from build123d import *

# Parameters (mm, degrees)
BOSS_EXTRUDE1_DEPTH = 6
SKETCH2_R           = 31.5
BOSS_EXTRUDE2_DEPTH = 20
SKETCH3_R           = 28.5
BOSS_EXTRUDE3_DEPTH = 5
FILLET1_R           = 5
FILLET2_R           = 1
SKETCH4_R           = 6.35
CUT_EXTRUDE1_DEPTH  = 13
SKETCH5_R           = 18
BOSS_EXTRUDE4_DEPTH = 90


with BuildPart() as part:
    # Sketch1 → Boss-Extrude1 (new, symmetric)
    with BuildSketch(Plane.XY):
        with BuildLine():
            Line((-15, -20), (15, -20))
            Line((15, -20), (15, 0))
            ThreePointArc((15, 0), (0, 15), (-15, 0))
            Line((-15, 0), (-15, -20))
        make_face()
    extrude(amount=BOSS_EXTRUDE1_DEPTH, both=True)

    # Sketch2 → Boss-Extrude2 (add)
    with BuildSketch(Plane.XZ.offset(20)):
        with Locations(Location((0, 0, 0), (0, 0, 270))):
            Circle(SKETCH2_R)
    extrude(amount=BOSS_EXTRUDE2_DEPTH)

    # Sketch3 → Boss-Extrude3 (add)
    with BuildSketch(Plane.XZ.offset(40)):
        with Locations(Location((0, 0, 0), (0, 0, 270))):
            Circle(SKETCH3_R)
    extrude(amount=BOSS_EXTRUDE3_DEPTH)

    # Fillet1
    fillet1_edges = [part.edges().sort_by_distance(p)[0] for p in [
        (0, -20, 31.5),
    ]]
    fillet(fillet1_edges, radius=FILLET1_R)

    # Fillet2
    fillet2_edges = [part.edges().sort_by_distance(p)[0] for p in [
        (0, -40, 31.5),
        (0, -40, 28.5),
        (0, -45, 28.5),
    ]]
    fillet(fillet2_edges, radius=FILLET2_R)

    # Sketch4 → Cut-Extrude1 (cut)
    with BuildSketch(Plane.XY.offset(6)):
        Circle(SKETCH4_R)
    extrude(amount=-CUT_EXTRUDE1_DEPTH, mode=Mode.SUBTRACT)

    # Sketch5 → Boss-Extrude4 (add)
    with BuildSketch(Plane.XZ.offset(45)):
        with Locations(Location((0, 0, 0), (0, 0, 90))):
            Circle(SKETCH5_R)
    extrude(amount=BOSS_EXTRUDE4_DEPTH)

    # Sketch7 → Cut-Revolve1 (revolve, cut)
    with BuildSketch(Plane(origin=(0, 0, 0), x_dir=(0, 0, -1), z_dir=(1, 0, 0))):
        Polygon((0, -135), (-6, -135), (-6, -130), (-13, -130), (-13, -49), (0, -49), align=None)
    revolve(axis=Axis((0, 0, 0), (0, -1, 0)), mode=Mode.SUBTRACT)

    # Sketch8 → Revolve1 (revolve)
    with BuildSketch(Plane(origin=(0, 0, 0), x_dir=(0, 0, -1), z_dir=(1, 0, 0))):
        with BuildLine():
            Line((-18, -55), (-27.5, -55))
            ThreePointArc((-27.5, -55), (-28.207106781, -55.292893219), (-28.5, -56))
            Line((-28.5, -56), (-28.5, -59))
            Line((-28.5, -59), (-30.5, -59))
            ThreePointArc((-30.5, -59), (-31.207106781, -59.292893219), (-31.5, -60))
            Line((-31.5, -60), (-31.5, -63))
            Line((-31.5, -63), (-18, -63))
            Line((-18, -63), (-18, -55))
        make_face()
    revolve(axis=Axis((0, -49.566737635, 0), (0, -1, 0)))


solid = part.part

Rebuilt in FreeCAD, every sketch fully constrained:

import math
import FreeCAD as App
import Part
import Sketcher
Q = App.Units.Quantity


def edges_at(feature, points):
    """Names of the edges that pass closest to the given points."""
    edges = feature.Shape.Edges
    near = lambda p: min(range(len(edges)), key=lambda i: edges[i].distToShape(Part.Vertex(*p))[0])
    return sorted({f"Edge{near(p) + 1}" for p in points})


def add_polygon(sketch, points):
    """Adds a closed chain of lines whose ends are joined by coincident constraints."""
    first, n = sketch.GeometryCount, len(points)
    for a, b in zip(points, points[1:] + points[:1]):
        sketch.addGeometry(Part.LineSegment(App.Vector(*a, 0), App.Vector(*b, 0)), False)
    for i in range(n):
        sketch.addConstraint(Sketcher.Constraint("Coincident", first + i, 2, first + (i + 1) % n, 1))

doc = App.newDocument("Part")
body = doc.addObject("PartDesign::Body", "Body")

# Sketch on XY plane
sketch1 = body.newObject("Sketcher::SketchObject", "Sketch")
sketch1.AttachmentSupport = (doc.getObject("XY_Plane"), [""])
sketch1.MapMode = "FlatFace"
sketch1.addGeometry([
    Part.LineSegment(App.Vector(-15, -20, 0), App.Vector(15, -20, 0)),
    Part.LineSegment(App.Vector(15, -20, 0), App.Vector(15, 0, 0)),
    Part.ArcOfCircle(Part.Circle(App.Vector(0, 0, 0), App.Vector(0, 0, 1), 15), math.radians(0), math.radians(180)),
    Part.LineSegment(App.Vector(-15, 0, 0), App.Vector(-15, -20, 0)),
], False)
sketch1.addConstraint([
    Sketcher.Constraint("Coincident", 0, 2, 1, 1),
    Sketcher.Constraint("Tangent", 1, 2, 2, 1),
    Sketcher.Constraint("Tangent", 2, 2, 3, 1),
    Sketcher.Constraint("Coincident", 3, 2, 0, 1),
    Sketcher.Constraint("Horizontal", 0),
    Sketcher.Constraint("Vertical", 1),
    Sketcher.Constraint("Vertical", 3),
    Sketcher.Constraint("Coincident", 2, 3, -1, 1),
    Sketcher.Constraint("Radius", 2, Q("15 mm")),
    Sketcher.Constraint("DistanceY", 1, 1, 1, 2, Q("20 mm")),
])
pad1 = body.newObject("PartDesign::Pad", "Pad")
pad1.Profile = sketch1
pad1.Length = 12
pad1.Midplane = True

# Sketch on XZ plane
sketch2 = body.newObject("Sketcher::SketchObject", "Sketch001")
sketch2.AttachmentSupport = (doc.getObject("XZ_Plane"), [""])
sketch2.MapMode = "FlatFace"
sketch2.AttachmentOffset = App.Placement(App.Vector(0, 0, 20), App.Rotation())
sketch2.addGeometry(Part.Circle(App.Vector(0, 0, 0), App.Vector(0, 0, 1), 32), False)
sketch2.addConstraint([
    Sketcher.Constraint("Coincident", 0, 3, -1, 1),
    Sketcher.Constraint("Diameter", 0, Q("63 mm")),
])
pad2 = body.newObject("PartDesign::Pad", "Pad001")
pad2.Profile = sketch2
pad2.Length = 20

# Sketch on XZ plane
sketch3 = body.newObject("Sketcher::SketchObject", "Sketch002")
sketch3.AttachmentSupport = (doc.getObject("XZ_Plane"), [""])
sketch3.MapMode = "FlatFace"
sketch3.AttachmentOffset = App.Placement(App.Vector(0, 0, 40), App.Rotation())
sketch3.addGeometry(Part.Circle(App.Vector(0, 0, 0), App.Vector(0, 0, 1), 28), False)
sketch3.addConstraint([
    Sketcher.Constraint("Coincident", 0, 3, -1, 1),
    Sketcher.Constraint("Diameter", 0, Q("57 mm")),
])
pad3 = body.newObject("PartDesign::Pad", "Pad002")
pad3.Profile = sketch3
pad3.Length = 5
doc.recompute()

fillet = body.newObject("PartDesign::Fillet", "Fillet")
fillet.Base = (pad3, edges_at(pad3, [(0, -20, 31.5)]))
fillet.Radius = 5
doc.recompute()

fillet2 = body.newObject("PartDesign::Fillet", "Fillet001")
fillet2.Base = (fillet, edges_at(fillet, [(0, -40, 31.5), (0, -40, 28.5), (0, -45, 28.5)]))
fillet2.Radius = 1

# Sketch on XY plane
sketch4 = body.newObject("Sketcher::SketchObject", "Sketch003")
sketch4.AttachmentSupport = (doc.getObject("XY_Plane"), [""])
sketch4.MapMode = "FlatFace"
sketch4.AttachmentOffset = App.Placement(App.Vector(0, 0, 6), App.Rotation())
sketch4.addGeometry(Part.Circle(App.Vector(0, 0, 0), App.Vector(0, 0, 1), 6), False)
sketch4.addConstraint([
    Sketcher.Constraint("Coincident", 0, 3, -1, 1),
    Sketcher.Constraint("Diameter", 0, Q("12.7 mm")),
])
pocket1 = body.newObject("PartDesign::Pocket", "Pocket")
pocket1.Profile = sketch4
pocket1.Length = 13

# Sketch on XZ plane
sketch5 = body.newObject("Sketcher::SketchObject", "Sketch004")
sketch5.AttachmentSupport = (doc.getObject("XZ_Plane"), [""])
sketch5.MapMode = "FlatFace"
sketch5.AttachmentOffset = App.Placement(App.Vector(0, 0, 45), App.Rotation())
sketch5.addGeometry(Part.Circle(App.Vector(0, 0, 0), App.Vector(0, 0, 1), 18), False)
sketch5.addConstraint([
    Sketcher.Constraint("Coincident", 0, 3, -1, 1),
    Sketcher.Constraint("Diameter", 0, Q("36 mm")),
])
pad4 = body.newObject("PartDesign::Pad", "Pad003")
pad4.Profile = sketch5
pad4.Length = 90

# Sketch on YZ plane
sketch6 = body.newObject("Sketcher::SketchObject", "Sketch005")
sketch6.AttachmentSupport = (doc.getObject("YZ_Plane"), [""])
sketch6.MapMode = "FlatFace"
add_polygon(sketch6, [(-135, 6), (-135, 0), (-49, 0), (-49, 13), (-130, 13), (-130, 6)])  # lines 0-5
sketch6.addConstraint([
    Sketcher.Constraint("Vertical", 0),
    Sketcher.Constraint("Horizontal", 1),
    Sketcher.Constraint("Vertical", 2),
    Sketcher.Constraint("Horizontal", 3),
    Sketcher.Constraint("Vertical", 4),
    Sketcher.Constraint("Horizontal", 5),
    Sketcher.Constraint("PointOnObject", 0, 2, -1),
    Sketcher.Constraint("DistanceX", 1, 1, 1, 2, Q("86 mm")),
    Sketcher.Constraint("DistanceX", 3, 2, 3, 1, Q("81 mm")),
    Sketcher.Constraint("DistanceY", 0, 2, 0, 1, Q("6 mm")),
    Sketcher.Constraint("DistanceY", 2, 1, 2, 2, Q("13 mm")),
    Sketcher.Constraint("DistanceX", 0, 2, -1, 1, Q("135 mm")),
])
groove = body.newObject("PartDesign::Groove", "Groove")
groove.Profile = sketch6
groove.ReferenceAxis = (sketch6, ["H_Axis"])
groove.Angle = 360

# Sketch on YZ plane
sketch7 = body.newObject("Sketcher::SketchObject", "Sketch006")
sketch7.AttachmentSupport = (doc.getObject("YZ_Plane"), [""])
sketch7.MapMode = "FlatFace"
sketch7.addGeometry([
    Part.LineSegment(App.Vector(-55, 18, 0), App.Vector(-55, 27.5, 0)),  # 0
    Part.ArcOfCircle(Part.Circle(App.Vector(-56, 27.5, 0), App.Vector(0, 0, 1), 1), math.radians(0), math.radians(90)),  # 1
    Part.LineSegment(App.Vector(-56, 28.5, 0), App.Vector(-59, 28.5, 0)),  # 2
    Part.LineSegment(App.Vector(-59, 28.5, 0), App.Vector(-59, 30.5, 0)),  # 3
    Part.ArcOfCircle(Part.Circle(App.Vector(-60, 30.5, 0), App.Vector(0, 0, 1), 1), math.radians(0), math.radians(90)),  # 4
    Part.LineSegment(App.Vector(-60, 31.5, 0), App.Vector(-63, 31.5, 0)),  # 5
    Part.LineSegment(App.Vector(-63, 31.5, 0), App.Vector(-63, 18, 0)),  # 6
    Part.LineSegment(App.Vector(-63, 18, 0), App.Vector(-55, 18, 0)),  # 7
], False)
sketch7.addConstraint([
    Sketcher.Constraint("Tangent", 0, 2, 1, 1),
    Sketcher.Constraint("Tangent", 1, 2, 2, 1),
    Sketcher.Constraint("Coincident", 2, 2, 3, 1),
    Sketcher.Constraint("Tangent", 3, 2, 4, 1),
    Sketcher.Constraint("Tangent", 4, 2, 5, 1),
    Sketcher.Constraint("Coincident", 5, 2, 6, 1),
    Sketcher.Constraint("Coincident", 6, 2, 7, 1),
    Sketcher.Constraint("Coincident", 7, 2, 0, 1),
    Sketcher.Constraint("Vertical", 0),
    Sketcher.Constraint("Horizontal", 2),
    Sketcher.Constraint("Vertical", 3),
    Sketcher.Constraint("Horizontal", 5),
    Sketcher.Constraint("Vertical", 6),
    Sketcher.Constraint("Horizontal", 7),
    Sketcher.Constraint("Equal", 1, 4),
    Sketcher.Constraint("Equal", 2, 5),
    Sketcher.Constraint("Radius", 1, Q("1 mm")),
    Sketcher.Constraint("DistanceX", 2, 2, 2, 1, Q("3 mm")),
    Sketcher.Constraint("DistanceY", 3, 1, 3, 2, Q("2 mm")),
    Sketcher.Constraint("DistanceY", 0, 1, 0, 2, Q("9.5 mm")),
    Sketcher.Constraint("DistanceX", 1, 3, -1, 1, Q("56 mm")),
    Sketcher.Constraint("DistanceY", -1, 1, 6, 2, Q("18 mm")),
])
revolution = body.newObject("PartDesign::Revolution", "Revolution")
revolution.Profile = sketch7
revolution.ReferenceAxis = (sketch7, ["H_Axis"])
revolution.Angle = 360

doc.recompute()
